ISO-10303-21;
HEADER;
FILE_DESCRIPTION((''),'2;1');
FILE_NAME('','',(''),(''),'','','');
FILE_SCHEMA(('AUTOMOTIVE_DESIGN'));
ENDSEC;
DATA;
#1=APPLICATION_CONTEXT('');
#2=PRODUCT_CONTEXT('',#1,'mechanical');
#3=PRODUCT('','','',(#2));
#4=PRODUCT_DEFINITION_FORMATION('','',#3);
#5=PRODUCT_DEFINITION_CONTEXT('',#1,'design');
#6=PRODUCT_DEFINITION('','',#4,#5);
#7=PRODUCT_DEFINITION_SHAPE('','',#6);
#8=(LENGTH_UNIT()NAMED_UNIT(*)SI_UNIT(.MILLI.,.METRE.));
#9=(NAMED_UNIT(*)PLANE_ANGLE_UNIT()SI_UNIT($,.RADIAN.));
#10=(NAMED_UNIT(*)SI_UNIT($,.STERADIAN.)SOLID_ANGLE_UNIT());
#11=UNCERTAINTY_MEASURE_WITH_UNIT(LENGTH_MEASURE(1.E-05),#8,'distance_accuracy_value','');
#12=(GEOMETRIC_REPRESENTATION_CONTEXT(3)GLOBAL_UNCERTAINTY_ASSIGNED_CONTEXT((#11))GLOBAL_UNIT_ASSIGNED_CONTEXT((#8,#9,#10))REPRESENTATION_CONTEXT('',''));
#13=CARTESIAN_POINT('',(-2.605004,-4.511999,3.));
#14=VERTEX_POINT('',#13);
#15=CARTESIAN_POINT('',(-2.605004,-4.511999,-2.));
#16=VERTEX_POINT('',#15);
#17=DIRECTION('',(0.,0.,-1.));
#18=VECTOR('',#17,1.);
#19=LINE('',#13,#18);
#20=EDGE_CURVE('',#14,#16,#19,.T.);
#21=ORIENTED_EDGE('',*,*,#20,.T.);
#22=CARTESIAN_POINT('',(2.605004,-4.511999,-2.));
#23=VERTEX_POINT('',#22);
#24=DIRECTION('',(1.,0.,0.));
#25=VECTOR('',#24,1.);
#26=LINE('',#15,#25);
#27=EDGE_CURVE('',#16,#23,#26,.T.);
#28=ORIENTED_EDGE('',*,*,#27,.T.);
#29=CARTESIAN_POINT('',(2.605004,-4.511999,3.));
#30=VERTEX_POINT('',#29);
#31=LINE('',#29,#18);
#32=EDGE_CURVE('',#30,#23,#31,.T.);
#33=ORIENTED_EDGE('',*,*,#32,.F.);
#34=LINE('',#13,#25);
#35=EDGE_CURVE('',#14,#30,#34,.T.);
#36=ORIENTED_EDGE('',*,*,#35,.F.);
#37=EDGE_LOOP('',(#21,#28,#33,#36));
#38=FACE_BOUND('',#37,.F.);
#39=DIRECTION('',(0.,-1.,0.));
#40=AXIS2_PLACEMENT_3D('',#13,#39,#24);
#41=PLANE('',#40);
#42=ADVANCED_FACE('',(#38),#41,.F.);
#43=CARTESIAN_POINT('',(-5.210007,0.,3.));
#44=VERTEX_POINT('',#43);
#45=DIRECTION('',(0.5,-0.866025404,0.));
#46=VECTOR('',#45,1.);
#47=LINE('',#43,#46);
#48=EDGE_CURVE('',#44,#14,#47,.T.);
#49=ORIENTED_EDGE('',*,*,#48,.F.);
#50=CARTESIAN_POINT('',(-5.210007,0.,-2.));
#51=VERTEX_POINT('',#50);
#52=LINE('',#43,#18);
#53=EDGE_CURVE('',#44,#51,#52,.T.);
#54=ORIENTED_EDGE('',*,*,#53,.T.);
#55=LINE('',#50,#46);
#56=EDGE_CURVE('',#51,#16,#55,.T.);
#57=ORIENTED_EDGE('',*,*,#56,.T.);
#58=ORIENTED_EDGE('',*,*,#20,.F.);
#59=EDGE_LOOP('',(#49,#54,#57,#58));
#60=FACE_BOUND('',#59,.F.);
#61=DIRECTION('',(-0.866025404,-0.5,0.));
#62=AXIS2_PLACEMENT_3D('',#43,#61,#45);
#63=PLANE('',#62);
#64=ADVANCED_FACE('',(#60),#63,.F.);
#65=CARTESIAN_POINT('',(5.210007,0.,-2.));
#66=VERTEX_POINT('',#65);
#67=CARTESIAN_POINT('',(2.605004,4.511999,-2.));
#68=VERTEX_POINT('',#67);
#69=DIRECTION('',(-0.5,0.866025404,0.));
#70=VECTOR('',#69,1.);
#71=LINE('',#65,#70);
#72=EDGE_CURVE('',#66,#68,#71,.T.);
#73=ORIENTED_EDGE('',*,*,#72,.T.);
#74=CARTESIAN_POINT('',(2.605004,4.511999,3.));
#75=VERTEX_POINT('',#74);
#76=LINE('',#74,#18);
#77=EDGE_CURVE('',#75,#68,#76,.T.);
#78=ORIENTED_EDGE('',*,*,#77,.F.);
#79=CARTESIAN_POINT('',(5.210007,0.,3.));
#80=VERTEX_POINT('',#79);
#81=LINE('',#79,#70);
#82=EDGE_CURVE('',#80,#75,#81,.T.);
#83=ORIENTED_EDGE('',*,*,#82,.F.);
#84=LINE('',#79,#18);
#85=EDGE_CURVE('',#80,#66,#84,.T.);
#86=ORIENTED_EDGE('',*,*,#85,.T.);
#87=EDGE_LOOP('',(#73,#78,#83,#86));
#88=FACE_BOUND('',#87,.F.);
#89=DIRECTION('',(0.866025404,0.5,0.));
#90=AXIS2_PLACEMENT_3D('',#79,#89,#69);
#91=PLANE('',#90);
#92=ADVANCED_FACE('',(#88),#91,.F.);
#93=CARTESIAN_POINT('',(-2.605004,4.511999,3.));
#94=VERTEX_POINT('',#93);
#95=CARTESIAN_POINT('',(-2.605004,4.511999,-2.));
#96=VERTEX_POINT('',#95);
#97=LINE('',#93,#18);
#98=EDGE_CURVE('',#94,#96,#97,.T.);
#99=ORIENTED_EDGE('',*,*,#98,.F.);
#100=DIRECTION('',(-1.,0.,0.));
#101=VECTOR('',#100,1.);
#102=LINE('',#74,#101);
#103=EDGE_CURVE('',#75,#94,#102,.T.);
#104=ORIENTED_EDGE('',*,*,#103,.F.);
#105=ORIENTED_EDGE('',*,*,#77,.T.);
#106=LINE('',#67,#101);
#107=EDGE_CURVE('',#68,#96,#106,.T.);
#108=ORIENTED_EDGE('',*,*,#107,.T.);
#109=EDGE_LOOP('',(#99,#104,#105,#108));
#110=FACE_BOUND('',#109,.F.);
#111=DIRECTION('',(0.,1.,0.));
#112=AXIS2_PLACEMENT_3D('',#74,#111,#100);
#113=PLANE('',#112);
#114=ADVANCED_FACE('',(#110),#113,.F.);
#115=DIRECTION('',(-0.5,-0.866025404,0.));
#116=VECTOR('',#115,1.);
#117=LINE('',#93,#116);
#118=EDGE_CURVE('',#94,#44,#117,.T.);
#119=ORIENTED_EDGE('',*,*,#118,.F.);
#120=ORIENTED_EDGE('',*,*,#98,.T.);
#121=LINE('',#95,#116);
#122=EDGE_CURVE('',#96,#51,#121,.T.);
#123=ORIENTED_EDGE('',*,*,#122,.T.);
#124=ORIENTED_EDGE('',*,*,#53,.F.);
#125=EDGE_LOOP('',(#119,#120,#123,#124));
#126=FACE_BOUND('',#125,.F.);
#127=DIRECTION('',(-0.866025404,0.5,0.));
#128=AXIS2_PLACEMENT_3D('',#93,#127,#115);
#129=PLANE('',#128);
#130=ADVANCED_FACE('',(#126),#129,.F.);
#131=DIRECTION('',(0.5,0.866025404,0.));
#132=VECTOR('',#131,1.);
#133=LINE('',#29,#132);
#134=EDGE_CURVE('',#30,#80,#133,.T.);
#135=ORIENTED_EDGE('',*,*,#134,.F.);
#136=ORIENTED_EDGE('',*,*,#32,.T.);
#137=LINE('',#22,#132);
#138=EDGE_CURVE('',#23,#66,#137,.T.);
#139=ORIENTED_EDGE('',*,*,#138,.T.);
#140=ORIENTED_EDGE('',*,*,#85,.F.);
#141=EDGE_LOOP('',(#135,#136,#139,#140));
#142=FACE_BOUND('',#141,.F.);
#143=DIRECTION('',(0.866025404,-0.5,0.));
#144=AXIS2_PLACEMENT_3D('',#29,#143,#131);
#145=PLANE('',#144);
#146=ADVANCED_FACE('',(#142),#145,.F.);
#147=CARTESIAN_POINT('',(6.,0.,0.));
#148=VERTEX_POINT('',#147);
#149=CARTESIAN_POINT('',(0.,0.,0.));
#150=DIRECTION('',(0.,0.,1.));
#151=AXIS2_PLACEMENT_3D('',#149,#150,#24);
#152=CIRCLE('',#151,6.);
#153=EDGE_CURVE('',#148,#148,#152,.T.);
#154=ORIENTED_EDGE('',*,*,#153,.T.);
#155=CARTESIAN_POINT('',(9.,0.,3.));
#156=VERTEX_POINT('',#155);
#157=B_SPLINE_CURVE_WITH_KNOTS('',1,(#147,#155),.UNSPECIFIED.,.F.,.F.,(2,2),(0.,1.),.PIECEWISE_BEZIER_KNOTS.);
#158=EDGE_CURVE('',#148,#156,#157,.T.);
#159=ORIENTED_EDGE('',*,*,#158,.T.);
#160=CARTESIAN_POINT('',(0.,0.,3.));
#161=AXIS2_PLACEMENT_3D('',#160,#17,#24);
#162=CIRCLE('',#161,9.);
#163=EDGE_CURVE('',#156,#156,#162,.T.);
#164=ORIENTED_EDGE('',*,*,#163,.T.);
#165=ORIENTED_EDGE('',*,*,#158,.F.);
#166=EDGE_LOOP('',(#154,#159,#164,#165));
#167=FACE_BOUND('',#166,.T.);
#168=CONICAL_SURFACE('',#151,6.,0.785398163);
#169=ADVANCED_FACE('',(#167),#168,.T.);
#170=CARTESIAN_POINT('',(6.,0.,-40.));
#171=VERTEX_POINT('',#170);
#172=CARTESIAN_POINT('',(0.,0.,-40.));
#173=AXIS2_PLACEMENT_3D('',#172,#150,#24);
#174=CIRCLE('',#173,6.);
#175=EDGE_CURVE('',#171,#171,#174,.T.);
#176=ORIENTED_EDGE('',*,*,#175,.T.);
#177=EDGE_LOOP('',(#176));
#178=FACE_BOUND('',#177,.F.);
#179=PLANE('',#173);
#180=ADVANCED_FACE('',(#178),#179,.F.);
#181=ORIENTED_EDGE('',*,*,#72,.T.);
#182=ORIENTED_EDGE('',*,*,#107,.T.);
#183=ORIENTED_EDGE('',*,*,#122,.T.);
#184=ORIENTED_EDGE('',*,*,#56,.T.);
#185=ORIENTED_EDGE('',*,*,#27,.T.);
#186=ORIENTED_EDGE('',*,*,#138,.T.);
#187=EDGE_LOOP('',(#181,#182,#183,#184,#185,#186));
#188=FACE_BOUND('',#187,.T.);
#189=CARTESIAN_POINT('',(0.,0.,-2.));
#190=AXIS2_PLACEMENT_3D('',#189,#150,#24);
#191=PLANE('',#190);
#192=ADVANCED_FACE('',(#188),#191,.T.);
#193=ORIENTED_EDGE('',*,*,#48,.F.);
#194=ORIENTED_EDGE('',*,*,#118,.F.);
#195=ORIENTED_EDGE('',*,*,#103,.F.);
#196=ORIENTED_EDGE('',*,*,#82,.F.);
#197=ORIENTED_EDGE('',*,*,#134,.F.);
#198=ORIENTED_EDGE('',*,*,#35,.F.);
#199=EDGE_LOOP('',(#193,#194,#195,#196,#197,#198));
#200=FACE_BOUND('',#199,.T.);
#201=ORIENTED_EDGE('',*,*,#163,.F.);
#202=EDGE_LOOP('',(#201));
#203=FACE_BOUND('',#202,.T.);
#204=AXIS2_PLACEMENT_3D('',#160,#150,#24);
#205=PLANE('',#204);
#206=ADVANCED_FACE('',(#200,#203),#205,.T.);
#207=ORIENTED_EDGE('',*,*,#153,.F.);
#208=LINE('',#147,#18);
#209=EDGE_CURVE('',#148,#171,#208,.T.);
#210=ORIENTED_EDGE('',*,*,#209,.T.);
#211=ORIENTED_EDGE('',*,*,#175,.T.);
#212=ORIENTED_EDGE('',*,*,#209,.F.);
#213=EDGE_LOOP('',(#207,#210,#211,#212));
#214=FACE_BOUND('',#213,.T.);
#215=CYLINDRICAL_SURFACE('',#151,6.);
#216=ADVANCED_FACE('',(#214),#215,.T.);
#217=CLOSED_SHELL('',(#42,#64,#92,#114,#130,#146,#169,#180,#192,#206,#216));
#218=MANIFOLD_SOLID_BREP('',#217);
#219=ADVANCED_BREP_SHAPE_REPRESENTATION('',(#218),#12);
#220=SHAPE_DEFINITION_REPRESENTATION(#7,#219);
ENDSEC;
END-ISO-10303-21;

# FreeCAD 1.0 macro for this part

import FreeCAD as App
import Part
import Sketcher
Q = App.Units.Quantity

doc = App.newDocument("Part")
body = doc.addObject("PartDesign::Body", "Body")

# Sketch on XY plane
sketch1 = body.newObject("Sketcher::SketchObject", "Sketch")
sketch1.AttachmentSupport = (doc.getObject("XY_Plane"), [""])
sketch1.MapMode = "FlatFace"
sketch1.addGeometry(Part.Circle(App.Vector(0, 0, 0), App.Vector(0, 0, 1), 6), False)
sketch1.addConstraint([
    Sketcher.Constraint("Coincident", 0, 3, -1, 1),
    Sketcher.Constraint("Diameter", 0, 12.0),
])
pad1 = body.newObject("PartDesign::Pad", "Pad")
pad1.Profile = sketch1
pad1.Length = 3
pad1.TaperAngle = 45

# Sketch on XY plane
sketch2 = body.newObject("Sketcher::SketchObject", "Sketch001")
sketch2.AttachmentSupport = (doc.getObject("XY_Plane"), [""])
sketch2.MapMode = "FlatFace"
sketch2.addGeometry(Part.Circle(App.Vector(0, 0, 0), App.Vector(0, 0, 1), 6), False)
sketch2.addConstraint([
    Sketcher.Constraint("Coincident", 0, 3, -1, 1),
    Sketcher.Constraint("Diameter", 0, 12.0),
])
pad2 = body.newObject("PartDesign::Pad", "Pad001")
pad2.Profile = sketch2
pad2.Length = 40
pad2.Reversed = True

# Sketch on XY plane
sketch3 = body.newObject("Sketcher::SketchObject", "Sketch002")
sketch3.AttachmentSupport = (doc.getObject("XY_Plane"), [""])
sketch3.MapMode = "FlatFace"
sketch3.AttachmentOffset = App.Placement(App.Vector(0, 0, 3), App.Rotation())
sketch3.addGeometry([
    Part.LineSegment(App.Vector(3, -5, 0), App.Vector(5, 0, 0)),  # 0
    Part.LineSegment(App.Vector(5, 0, 0), App.Vector(3, 5, 0)),  # 1
    Part.LineSegment(App.Vector(3, 5, 0), App.Vector(-3, 5, 0)),  # 2
    Part.LineSegment(App.Vector(-3, 5, 0), App.Vector(-5, 0, 0)),  # 3
    Part.LineSegment(App.Vector(-5, 0, 0), App.Vector(-3, -5, 0)),  # 4
    Part.LineSegment(App.Vector(-3, -5, 0), App.Vector(3, -5, 0)),  # 5
], False)
sketch3.addConstraint([
    Sketcher.Constraint("Coincident", 0, 2, 1, 1),
    Sketcher.Constraint("Coincident", 1, 2, 2, 1),
    Sketcher.Constraint("Coincident", 2, 2, 3, 1),
    Sketcher.Constraint("Coincident", 3, 2, 4, 1),
    Sketcher.Constraint("Coincident", 4, 2, 5, 1),
    Sketcher.Constraint("Coincident", 5, 2, 0, 1),
    Sketcher.Constraint("Horizontal", 2),
    Sketcher.Constraint("Horizontal", 5),
    Sketcher.Constraint("Symmetric", 0, 2, 3, 2, -1, 1),
    Sketcher.Constraint("Symmetric", 1, 2, 4, 2, -1, 1),
    Sketcher.Constraint("PointOnObject", 0, 2, -1),
    Sketcher.Constraint("Parallel", 0, 3),
    Sketcher.Constraint("Vertical", 2, 2, 4, 2),
    Sketcher.Constraint("Angle", 0, Q("60 deg")),
    Sketcher.Constraint("DistanceY", -1, 1, 1, 2, 4.511999),
    Sketcher.Constraint("DistanceX", 2, 2, 2, 1, 5.210007),
])
pocket1 = body.newObject("PartDesign::Pocket", "Pocket")
pocket1.Profile = sketch3
pocket1.Length = 5

doc.recompute()
